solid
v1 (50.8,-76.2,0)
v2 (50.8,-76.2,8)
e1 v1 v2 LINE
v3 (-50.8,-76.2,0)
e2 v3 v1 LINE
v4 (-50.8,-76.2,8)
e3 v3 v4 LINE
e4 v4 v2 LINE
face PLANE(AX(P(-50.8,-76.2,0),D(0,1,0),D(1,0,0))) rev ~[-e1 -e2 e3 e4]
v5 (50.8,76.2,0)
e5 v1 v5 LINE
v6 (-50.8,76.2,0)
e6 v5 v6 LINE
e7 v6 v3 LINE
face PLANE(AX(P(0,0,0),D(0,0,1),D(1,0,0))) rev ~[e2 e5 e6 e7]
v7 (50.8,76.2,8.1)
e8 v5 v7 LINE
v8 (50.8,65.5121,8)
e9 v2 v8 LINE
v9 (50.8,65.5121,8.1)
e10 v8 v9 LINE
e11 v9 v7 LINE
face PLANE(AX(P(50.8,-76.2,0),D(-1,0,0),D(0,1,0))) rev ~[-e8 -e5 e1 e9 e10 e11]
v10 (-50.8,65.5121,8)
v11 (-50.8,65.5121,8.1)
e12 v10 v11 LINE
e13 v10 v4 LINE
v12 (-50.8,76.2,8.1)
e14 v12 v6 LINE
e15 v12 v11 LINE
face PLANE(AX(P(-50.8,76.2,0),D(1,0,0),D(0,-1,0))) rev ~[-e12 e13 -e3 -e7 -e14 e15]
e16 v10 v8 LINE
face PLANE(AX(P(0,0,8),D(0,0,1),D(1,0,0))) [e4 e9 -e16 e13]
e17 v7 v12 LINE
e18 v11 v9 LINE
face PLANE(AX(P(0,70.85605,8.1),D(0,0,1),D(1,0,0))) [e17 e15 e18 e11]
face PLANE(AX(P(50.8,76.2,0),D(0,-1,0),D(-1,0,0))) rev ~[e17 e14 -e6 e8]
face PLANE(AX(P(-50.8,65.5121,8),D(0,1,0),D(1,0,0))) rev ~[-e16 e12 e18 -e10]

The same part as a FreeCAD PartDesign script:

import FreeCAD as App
import Part
import Sketcher

V = App.Vector
Q = App.Units.Quantity

doc = App.newDocument("Part")
body = doc.addObject("PartDesign::Body", "Body")

# Sketch on XY plane
sketch1 = doc.addObject("Sketcher::SketchObject", "Sketch")
body.addObject(sketch1)
sketch1.AttachmentSupport = (doc.XY_Plane, [""])
sketch1.MapMode = "FlatFace"
sketch1.addGeometry(Part.LineSegment(V(-51, 76, 0), V(-51, -76, 0)), False)
sketch1.addGeometry(Part.LineSegment(V(-51, -76, 0), V(51, -76, 0)), False)
sketch1.addGeometry(Part.LineSegment(V(51, -76, 0), V(51, 76, 0)), False)
sketch1.addGeometry(Part.LineSegment(V(51, 76, 0), V(-51, 76, 0)), False)
sketch1.addConstraint(Sketcher.Constraint("Coincident", 0, 2, 1, 1))
sketch1.addConstraint(Sketcher.Constraint("Coincident", 1, 2, 2, 1))
sketch1.addConstraint(Sketcher.Constraint("Coincident", 2, 2, 3, 1))
sketch1.addConstraint(Sketcher.Constraint("Coincident", 3, 2, 0, 1))
sketch1.addConstraint(Sketcher.Constraint("Vertical", 0))
sketch1.addConstraint(Sketcher.Constraint("Horizontal", 1))
sketch1.addConstraint(Sketcher.Constraint("Vertical", 2))
sketch1.addConstraint(Sketcher.Constraint("Horizontal", 3))
sketch1.addConstraint(Sketcher.Constraint("Symmetric", 0, 2, 2, 2, -1, 1))
sketch1.addConstraint(Sketcher.Constraint("DistanceX", 0, 2, -1, 1, Q("50.8 mm")))
sketch1.addConstraint(Sketcher.Constraint("DistanceY", 0, 2, 0, 1, Q("152.4 mm")))
pad1 = doc.addObject("PartDesign::Pad", "Pad")
body.addObject(pad1)
pad1.Profile = sketch1
pad1.Length = 8

# Sketch on XY plane
sketch2 = doc.addObject("Sketcher::SketchObject", "Sketch001")
body.addObject(sketch2)
sketch2.AttachmentSupport = (doc.XY_Plane, [""])
sketch2.MapMode = "FlatFace"
sketch2.AttachmentOffset = App.Placement(V(0, 0, 8), App.Rotation())
sketch2.addGeometry(Part.LineSegment(V(51, 76, 0), V(-51, 76, 0)), False)
sketch2.addGeometry(Part.LineSegment(V(-51, 76, 0), V(-51, 66, 0)), False)
sketch2.addGeometry(Part.LineSegment(V(-51, 66, 0), V(51, 66, 0)), False)
sketch2.addGeometry(Part.LineSegment(V(51, 66, 0), V(51, 76, 0)), False)
sketch2.addConstraint(Sketcher.Constraint("Coincident", 0, 2, 1, 1))
sketch2.addConstraint(Sketcher.Constraint("Coincident", 1, 2, 2, 1))
sketch2.addConstraint(Sketcher.Constraint("Coincident", 2, 2, 3, 1))
sketch2.addConstraint(Sketcher.Constraint("Coincident", 3, 2, 0, 1))
sketch2.addConstraint(Sketcher.Constraint("Horizontal", 0))
sketch2.addConstraint(Sketcher.Constraint("Vertical", 1))
sketch2.addConstraint(Sketcher.Constraint("Horizontal", 2))
sketch2.addConstraint(Sketcher.Constraint("Vertical", 3))
sketch2.addConstraint(Sketcher.Constraint("DistanceX", 0, 2, 0, 1, Q("101.6 mm")))
sketch2.addConstraint(Sketcher.Constraint("DistanceX", 0, 2, -1, 1, Q("50.8 mm")))
sketch2.addConstraint(Sketcher.Constraint("DistanceY", -1, 1, 0, 2, Q("76.2 mm")))
sketch2.addConstraint(Sketcher.Constraint("DistanceY", 1, 2, 1, 1, Q("10.688 mm")))
pad2 = doc.addObject("PartDesign::Pad", "Pad001")
body.addObject(pad2)
pad2.Profile = sketch2
pad2.Length = 0.1

doc.recompute()
